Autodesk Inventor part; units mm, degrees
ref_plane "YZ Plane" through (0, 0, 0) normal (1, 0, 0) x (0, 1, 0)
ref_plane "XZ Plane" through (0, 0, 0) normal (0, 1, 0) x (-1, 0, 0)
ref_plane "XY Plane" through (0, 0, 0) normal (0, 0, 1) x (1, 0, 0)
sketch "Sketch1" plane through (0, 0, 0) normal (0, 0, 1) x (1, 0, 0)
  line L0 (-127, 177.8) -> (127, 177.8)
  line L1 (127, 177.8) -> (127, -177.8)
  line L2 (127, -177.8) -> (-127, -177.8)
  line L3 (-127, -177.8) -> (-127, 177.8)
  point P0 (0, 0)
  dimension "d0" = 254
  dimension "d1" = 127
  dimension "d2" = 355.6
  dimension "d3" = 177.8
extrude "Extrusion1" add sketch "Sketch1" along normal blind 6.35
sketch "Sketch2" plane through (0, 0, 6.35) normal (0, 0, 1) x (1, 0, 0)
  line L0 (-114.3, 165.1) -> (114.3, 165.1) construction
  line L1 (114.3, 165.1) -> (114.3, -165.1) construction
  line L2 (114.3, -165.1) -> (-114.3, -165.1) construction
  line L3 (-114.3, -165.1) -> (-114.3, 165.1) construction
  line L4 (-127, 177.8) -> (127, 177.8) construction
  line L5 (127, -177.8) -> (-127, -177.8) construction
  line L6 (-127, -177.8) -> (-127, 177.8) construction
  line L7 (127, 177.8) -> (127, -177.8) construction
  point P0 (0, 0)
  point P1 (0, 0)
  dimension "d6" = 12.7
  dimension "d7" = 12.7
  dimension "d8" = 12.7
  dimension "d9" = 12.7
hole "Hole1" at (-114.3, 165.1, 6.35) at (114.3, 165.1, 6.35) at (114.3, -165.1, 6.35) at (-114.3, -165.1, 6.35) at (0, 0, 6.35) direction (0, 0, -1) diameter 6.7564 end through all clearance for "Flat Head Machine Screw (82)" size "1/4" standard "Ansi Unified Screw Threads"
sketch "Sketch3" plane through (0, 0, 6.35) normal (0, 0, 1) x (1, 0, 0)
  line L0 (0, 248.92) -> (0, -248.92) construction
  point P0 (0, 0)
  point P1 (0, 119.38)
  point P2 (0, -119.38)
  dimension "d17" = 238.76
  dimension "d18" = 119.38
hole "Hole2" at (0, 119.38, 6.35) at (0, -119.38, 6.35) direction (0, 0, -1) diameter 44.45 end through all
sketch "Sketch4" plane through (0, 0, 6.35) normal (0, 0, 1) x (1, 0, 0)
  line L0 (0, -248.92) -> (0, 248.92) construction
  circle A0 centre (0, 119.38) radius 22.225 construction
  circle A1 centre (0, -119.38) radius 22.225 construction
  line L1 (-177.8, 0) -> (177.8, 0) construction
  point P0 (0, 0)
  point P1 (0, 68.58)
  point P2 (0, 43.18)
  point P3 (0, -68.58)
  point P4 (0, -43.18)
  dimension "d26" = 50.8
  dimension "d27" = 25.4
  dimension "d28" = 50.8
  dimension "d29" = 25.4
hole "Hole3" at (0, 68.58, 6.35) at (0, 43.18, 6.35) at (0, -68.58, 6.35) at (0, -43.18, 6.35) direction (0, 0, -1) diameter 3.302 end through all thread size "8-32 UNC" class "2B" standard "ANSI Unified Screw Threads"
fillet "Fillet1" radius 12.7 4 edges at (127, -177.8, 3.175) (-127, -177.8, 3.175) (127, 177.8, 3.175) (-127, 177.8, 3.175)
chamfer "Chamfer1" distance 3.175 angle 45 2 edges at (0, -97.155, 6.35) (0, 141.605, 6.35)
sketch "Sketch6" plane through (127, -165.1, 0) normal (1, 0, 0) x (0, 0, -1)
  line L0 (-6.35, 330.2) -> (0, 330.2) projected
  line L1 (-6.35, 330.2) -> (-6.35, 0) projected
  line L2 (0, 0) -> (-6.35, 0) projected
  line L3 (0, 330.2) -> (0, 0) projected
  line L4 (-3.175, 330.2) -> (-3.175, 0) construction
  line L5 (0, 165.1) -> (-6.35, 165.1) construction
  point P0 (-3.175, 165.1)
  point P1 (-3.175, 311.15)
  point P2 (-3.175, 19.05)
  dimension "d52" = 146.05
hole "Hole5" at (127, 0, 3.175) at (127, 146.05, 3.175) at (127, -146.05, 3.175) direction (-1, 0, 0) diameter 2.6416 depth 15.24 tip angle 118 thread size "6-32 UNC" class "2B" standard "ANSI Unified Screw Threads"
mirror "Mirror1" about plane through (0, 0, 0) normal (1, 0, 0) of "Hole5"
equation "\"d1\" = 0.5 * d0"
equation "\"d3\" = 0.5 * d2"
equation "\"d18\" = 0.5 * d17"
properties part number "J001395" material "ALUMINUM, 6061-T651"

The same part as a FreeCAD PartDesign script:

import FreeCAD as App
import Part
import Sketcher
from FreeCAD import Vector
Q = App.Units.Quantity


def edges_at(feature, points):
    """Names of the edges that pass closest to the given points."""
    edges = feature.Shape.Edges
    near = lambda p: min(range(len(edges)), key=lambda i: edges[i].distToShape(Part.Vertex(*p))[0])
    return sorted({f"Edge{near(p) + 1}" for p in points})


def add_polygon(sketch, points):
    """Adds a closed chain of lines whose ends are joined by coincident constraints."""
    first, n = sketch.GeometryCount, len(points)
    for a, b in zip(points, points[1:] + points[:1]):
        sketch.addGeometry(Part.LineSegment(App.Vector(*a, 0), App.Vector(*b, 0)), False)
    for i in range(n):
        sketch.addConstraint(Sketcher.Constraint("Coincident", first + i, 2, first + (i + 1) % n, 1))

doc = App.newDocument("Part")
params = doc.addObject("Spreadsheet::Sheet", "Params")
for row, (alias, value) in enumerate([
    ("sketch1_width", "10 in"),
    ("sketch1_height", "14 in"),
    ("pad1_length", "0.25 in"),
    ("sketch2_diameter", "0.266 in"),
    ("hole_diameter", "0.266 in"),
    ("sketch3_diameter", "1.75 in"),
    ("hole2_diameter", "1.75 in"),
    ("sketch4_diameter", "0.13 in"),
    ("hole3_diameter", "0.13 in"),
    ("fillet_radius", "0.5 in"),
    ("chamfer_size", "0.125 in"),
    ("sketch5_diameter", "0.104 in"),
    ("hole4_diameter", "0.104 in"),
    ("hole4_depth", "0.6 in"),
], start=1):
    params.set(f"A{row}", alias)
    params.set(f"B{row}", "=" + value)
    params.setAlias(f"B{row}", alias)

body = doc.addObject("PartDesign::Body", "Body")

# Sketch on XY plane
sketch1 = body.newObject("Sketcher::SketchObject", "Sketch")
sketch1.AttachmentSupport = (doc.getObject("XY_Plane"), [""])
sketch1.MapMode = "FlatFace"
add_polygon(sketch1, [(127, 178), (-127, 178), (-127, -178), (127, -178)])  # lines 0-3
sketch1.addConstraint(Sketcher.Constraint("Horizontal", 0))
sketch1.addConstraint(Sketcher.Constraint("Vertical", 1))
sketch1.addConstraint(Sketcher.Constraint("Horizontal", 2))
sketch1.addConstraint(Sketcher.Constraint("Vertical", 3))
sketch1.addConstraint(Sketcher.Constraint("Symmetric", 0, 2, 2, 2, -1, 1))
sketch1.addConstraint(Sketcher.Constraint("DistanceX", 0, 2, 0, 1, Q("10 in")))
sketch1.addConstraint(Sketcher.Constraint("DistanceY", 1, 2, 1, 1, Q("14 in")))
sketch1.setExpression("Constraints[9]", "Params.sketch1_width")
sketch1.setExpression("Constraints[10]", "Params.sketch1_height")
pad1 = body.newObject("PartDesign::Pad", "Pad")
pad1.Profile = sketch1
pad1.setExpression("Length", "Params.pad1_length")

# Sketch on XY plane
sketch2 = body.newObject("Sketcher::SketchObject", "Sketch001")
sketch2.AttachmentSupport = (doc.getObject("XY_Plane"), [""])
sketch2.MapMode = "FlatFace"
sketch2.AttachmentOffset = App.Placement(Vector(0, 0, 0.25 * 25.4), App.Rotation())
sketch2.addGeometry(Part.Circle(Vector(-114.3, 165.1, 0), Vector(0, 0, 1), 3.4), False)
sketch2.addGeometry(Part.Circle(Vector(114.3, 165.1, 0), Vector(0, 0, 1), 3.4), False)
sketch2.addGeometry(Part.Circle(Vector(114.3, -165.1, 0), Vector(0, 0, 1), 3.4), False)
sketch2.addGeometry(Part.Circle(Vector(-114.3, -165.1, 0), Vector(0, 0, 1), 3.4), False)
sketch2.addGeometry(Part.Circle(Vector(0, 0, 0), Vector(0, 0, 1), 3.4), False)
sketch2.addConstraint(Sketcher.Constraint("Coincident", 4, 3, -1, 1))
sketch2.addConstraint(Sketcher.Constraint("Equal", 0, 1))
sketch2.addConstraint(Sketcher.Constraint("Equal", 1, 2))
sketch2.addConstraint(Sketcher.Constraint("Equal", 2, 3))
sketch2.addConstraint(Sketcher.Constraint("Equal", 3, 4))
sketch2.addConstraint(Sketcher.Constraint("Symmetric", 0, 3, 2, 3, -1, 1))
sketch2.addConstraint(Sketcher.Constraint("Symmetric", 1, 3, 3, 3, -1, 1))
sketch2.addConstraint(Sketcher.Constraint("Symmetric", 0, 3, 1, 3, -2))
sketch2.addConstraint(Sketcher.Constraint("Diameter", 0, Q("0.266 in")))
sketch2.addConstraint(Sketcher.Constraint("DistanceX", 0, 3, 1, 3, Q("9 in")))
sketch2.addConstraint(Sketcher.Constraint("DistanceY", 2, 3, 1, 3, Q("13 in")))
sketch2.setExpression("Constraints[8]", "Params.sketch2_diameter")
doc.recompute()
hole = body.newObject("PartDesign::Hole", "Hole")
hole.Profile = sketch2
hole.ThreadType = "None"
hole.setExpression("Diameter", "Params.hole_diameter")
hole.DepthType = "ThroughAll"

# Sketch on XY plane
sketch3 = body.newObject("Sketcher::SketchObject", "Sketch002")
sketch3.AttachmentSupport = (doc.getObject("XY_Plane"), [""])
sketch3.MapMode = "FlatFace"
sketch3.AttachmentOffset = App.Placement(Vector(0, 0, 0.25 * 25.4), App.Rotation())
sketch3.addGeometry(Part.Circle(Vector(0, 119, 0), Vector(0, 0, 1), 22), False)
sketch3.addGeometry(Part.Circle(Vector(0, -119, 0), Vector(0, 0, 1), 22), False)
sketch3.addConstraint(Sketcher.Constraint("Equal", 0, 1))
sketch3.addConstraint(Sketcher.Constraint("Symmetric", 0, 3, 1, 3, -1, 1))
sketch3.addConstraint(Sketcher.Constraint("PointOnObject", 0, 3, -2))
sketch3.addConstraint(Sketcher.Constraint("Diameter", 0, Q("1.75 in")))
sketch3.addConstraint(Sketcher.Constraint("DistanceY", -1, 1, 0, 3, Q("4.7 in")))
sketch3.setExpression("Constraints[3]", "Params.sketch3_diameter")
doc.recompute()
hole2 = body.newObject("PartDesign::Hole", "Hole001")
hole2.Profile = sketch3
hole2.ThreadType = "None"
hole2.setExpression("Diameter", "Params.hole2_diameter")
hole2.DepthType = "ThroughAll"

# Sketch on XY plane
sketch4 = body.newObject("Sketcher::SketchObject", "Sketch003")
sketch4.AttachmentSupport = (doc.getObject("XY_Plane"), [""])
sketch4.MapMode = "FlatFace"
sketch4.AttachmentOffset = App.Placement(Vector(0, 0, 0.25 * 25.4), App.Rotation())
sketch4.addGeometry(Part.Circle(Vector(0, 68.6, 0), Vector(0, 0, 1), 1.7), False)
sketch4.addGeometry(Part.Circle(Vector(0, 43.2, 0), Vector(0, 0, 1), 1.7), False)
sketch4.addGeometry(Part.Circle(Vector(0, -68.6, 0), Vector(0, 0, 1), 1.7), False)
sketch4.addGeometry(Part.Circle(Vector(0, -43.2, 0), Vector(0, 0, 1), 1.7), False)
sketch4.addConstraint(Sketcher.Constraint("Equal", 0, 1))
sketch4.addConstraint(Sketcher.Constraint("Equal", 1, 2))
sketch4.addConstraint(Sketcher.Constraint("Equal", 2, 3))
sketch4.addConstraint(Sketcher.Constraint("Symmetric", 0, 3, 2, 3, -1, 1))
sketch4.addConstraint(Sketcher.Constraint("Symmetric", 1, 3, 3, 3, -1, 1))
sketch4.addConstraint(Sketcher.Constraint("PointOnObject", 0, 3, -2))
sketch4.addConstraint(Sketcher.Constraint("PointOnObject", 1, 3, -2))
sketch4.addConstraint(Sketcher.Constraint("Diameter", 0, Q("0.13 in")))
sketch4.addConstraint(Sketcher.Constraint("DistanceY", 1, 3, 0, 3, Q("1 in")))
sketch4.addConstraint(Sketcher.Constraint("DistanceY", -1, 1, 0, 3, Q("2.7 in")))
sketch4.setExpression("Constraints[7]", "Params.sketch4_diameter")
doc.recompute()
hole3 = body.newObject("PartDesign::Hole", "Hole002")
hole3.Profile = sketch4
hole3.ThreadType = "None"
hole3.setExpression("Diameter", "Params.hole3_diameter")
hole3.DepthType = "ThroughAll"
doc.recompute()

fillet = body.newObject("PartDesign::Fillet", "Fillet")
fillet.Base = (hole3, edges_at(hole3, [
    (127, -177.8, 3.175),
    (-127, -177.8, 3.175),
    (127, 177.8, 3.175),
    (-127, 177.8, 3.175),
]))
fillet.setExpression("Radius", "Params.fillet_radius")
doc.recompute()

chamfer = body.newObject("PartDesign::Chamfer", "Chamfer")
chamfer.Base = (fillet, edges_at(fillet, [(0, -97.155, 6.35), (0, 141.605, 6.35)]))
chamfer.setExpression("Size", "Params.chamfer_size")

# Sketch on YZ plane
sketch5 = body.newObject("Sketcher::SketchObject", "Sketch004")
sketch5.AttachmentSupport = (doc.getObject("YZ_Plane"), [""])
sketch5.MapMode = "FlatFace"
sketch5.AttachmentOffset = App.Placement(Vector(0, 0, 5 * 25.4), App.Rotation())
sketch5.addGeometry(Part.Circle(Vector(0, 3.2, 0), Vector(0, 0, 1), 1.3), False)
sketch5.addGeometry(Part.Circle(Vector(146.1, 3.2, 0), Vector(0, 0, 1), 1.3), False)
sketch5.addGeometry(Part.Circle(Vector(-146.1, 3.2, 0), Vector(0, 0, 1), 1.3), False)
sketch5.addConstraint(Sketcher.Constraint("Equal", 0, 1))
sketch5.addConstraint(Sketcher.Constraint("Equal", 1, 2))
sketch5.addConstraint(Sketcher.Constraint("Symmetric", 1, 3, 2, 3, -2))
sketch5.addConstraint(Sketcher.Constraint("PointOnObject", 0, 3, -2))
sketch5.addConstraint(Sketcher.Constraint("Horizontal", 0, 3, 1, 3))
sketch5.addConstraint(Sketcher.Constraint("Diameter", 0, Q("0.104 in")))
sketch5.addConstraint(Sketcher.Constraint("DistanceX", 2, 3, 1, 3, Q("11.5 in")))
sketch5.addConstraint(Sketcher.Constraint("DistanceY", -1, 1, 0, 3, Q("0.125 in")))
sketch5.setExpression("Constraints[5]", "Params.sketch5_diameter")
doc.recompute()
hole4 = body.newObject("PartDesign::Hole", "Hole003")
hole4.Profile = sketch5
hole4.ThreadType = "None"
hole4.setExpression("Diameter", "Params.hole4_diameter")
hole4.DepthType = "Dimension"
hole4.setExpression("Depth", "Params.hole4_depth")
hole4.DrillPoint = "Angled"
hole4.DrillPointAngle = 118
doc.recompute()

mirrored = body.newObject("PartDesign::Mirrored", "Mirrored")
mirrored.Originals = [hole4]
mirrored.MirrorPlane = (doc.getObject("YZ_Plane"), [""])
body.Tip = mirrored

doc.recompute()
